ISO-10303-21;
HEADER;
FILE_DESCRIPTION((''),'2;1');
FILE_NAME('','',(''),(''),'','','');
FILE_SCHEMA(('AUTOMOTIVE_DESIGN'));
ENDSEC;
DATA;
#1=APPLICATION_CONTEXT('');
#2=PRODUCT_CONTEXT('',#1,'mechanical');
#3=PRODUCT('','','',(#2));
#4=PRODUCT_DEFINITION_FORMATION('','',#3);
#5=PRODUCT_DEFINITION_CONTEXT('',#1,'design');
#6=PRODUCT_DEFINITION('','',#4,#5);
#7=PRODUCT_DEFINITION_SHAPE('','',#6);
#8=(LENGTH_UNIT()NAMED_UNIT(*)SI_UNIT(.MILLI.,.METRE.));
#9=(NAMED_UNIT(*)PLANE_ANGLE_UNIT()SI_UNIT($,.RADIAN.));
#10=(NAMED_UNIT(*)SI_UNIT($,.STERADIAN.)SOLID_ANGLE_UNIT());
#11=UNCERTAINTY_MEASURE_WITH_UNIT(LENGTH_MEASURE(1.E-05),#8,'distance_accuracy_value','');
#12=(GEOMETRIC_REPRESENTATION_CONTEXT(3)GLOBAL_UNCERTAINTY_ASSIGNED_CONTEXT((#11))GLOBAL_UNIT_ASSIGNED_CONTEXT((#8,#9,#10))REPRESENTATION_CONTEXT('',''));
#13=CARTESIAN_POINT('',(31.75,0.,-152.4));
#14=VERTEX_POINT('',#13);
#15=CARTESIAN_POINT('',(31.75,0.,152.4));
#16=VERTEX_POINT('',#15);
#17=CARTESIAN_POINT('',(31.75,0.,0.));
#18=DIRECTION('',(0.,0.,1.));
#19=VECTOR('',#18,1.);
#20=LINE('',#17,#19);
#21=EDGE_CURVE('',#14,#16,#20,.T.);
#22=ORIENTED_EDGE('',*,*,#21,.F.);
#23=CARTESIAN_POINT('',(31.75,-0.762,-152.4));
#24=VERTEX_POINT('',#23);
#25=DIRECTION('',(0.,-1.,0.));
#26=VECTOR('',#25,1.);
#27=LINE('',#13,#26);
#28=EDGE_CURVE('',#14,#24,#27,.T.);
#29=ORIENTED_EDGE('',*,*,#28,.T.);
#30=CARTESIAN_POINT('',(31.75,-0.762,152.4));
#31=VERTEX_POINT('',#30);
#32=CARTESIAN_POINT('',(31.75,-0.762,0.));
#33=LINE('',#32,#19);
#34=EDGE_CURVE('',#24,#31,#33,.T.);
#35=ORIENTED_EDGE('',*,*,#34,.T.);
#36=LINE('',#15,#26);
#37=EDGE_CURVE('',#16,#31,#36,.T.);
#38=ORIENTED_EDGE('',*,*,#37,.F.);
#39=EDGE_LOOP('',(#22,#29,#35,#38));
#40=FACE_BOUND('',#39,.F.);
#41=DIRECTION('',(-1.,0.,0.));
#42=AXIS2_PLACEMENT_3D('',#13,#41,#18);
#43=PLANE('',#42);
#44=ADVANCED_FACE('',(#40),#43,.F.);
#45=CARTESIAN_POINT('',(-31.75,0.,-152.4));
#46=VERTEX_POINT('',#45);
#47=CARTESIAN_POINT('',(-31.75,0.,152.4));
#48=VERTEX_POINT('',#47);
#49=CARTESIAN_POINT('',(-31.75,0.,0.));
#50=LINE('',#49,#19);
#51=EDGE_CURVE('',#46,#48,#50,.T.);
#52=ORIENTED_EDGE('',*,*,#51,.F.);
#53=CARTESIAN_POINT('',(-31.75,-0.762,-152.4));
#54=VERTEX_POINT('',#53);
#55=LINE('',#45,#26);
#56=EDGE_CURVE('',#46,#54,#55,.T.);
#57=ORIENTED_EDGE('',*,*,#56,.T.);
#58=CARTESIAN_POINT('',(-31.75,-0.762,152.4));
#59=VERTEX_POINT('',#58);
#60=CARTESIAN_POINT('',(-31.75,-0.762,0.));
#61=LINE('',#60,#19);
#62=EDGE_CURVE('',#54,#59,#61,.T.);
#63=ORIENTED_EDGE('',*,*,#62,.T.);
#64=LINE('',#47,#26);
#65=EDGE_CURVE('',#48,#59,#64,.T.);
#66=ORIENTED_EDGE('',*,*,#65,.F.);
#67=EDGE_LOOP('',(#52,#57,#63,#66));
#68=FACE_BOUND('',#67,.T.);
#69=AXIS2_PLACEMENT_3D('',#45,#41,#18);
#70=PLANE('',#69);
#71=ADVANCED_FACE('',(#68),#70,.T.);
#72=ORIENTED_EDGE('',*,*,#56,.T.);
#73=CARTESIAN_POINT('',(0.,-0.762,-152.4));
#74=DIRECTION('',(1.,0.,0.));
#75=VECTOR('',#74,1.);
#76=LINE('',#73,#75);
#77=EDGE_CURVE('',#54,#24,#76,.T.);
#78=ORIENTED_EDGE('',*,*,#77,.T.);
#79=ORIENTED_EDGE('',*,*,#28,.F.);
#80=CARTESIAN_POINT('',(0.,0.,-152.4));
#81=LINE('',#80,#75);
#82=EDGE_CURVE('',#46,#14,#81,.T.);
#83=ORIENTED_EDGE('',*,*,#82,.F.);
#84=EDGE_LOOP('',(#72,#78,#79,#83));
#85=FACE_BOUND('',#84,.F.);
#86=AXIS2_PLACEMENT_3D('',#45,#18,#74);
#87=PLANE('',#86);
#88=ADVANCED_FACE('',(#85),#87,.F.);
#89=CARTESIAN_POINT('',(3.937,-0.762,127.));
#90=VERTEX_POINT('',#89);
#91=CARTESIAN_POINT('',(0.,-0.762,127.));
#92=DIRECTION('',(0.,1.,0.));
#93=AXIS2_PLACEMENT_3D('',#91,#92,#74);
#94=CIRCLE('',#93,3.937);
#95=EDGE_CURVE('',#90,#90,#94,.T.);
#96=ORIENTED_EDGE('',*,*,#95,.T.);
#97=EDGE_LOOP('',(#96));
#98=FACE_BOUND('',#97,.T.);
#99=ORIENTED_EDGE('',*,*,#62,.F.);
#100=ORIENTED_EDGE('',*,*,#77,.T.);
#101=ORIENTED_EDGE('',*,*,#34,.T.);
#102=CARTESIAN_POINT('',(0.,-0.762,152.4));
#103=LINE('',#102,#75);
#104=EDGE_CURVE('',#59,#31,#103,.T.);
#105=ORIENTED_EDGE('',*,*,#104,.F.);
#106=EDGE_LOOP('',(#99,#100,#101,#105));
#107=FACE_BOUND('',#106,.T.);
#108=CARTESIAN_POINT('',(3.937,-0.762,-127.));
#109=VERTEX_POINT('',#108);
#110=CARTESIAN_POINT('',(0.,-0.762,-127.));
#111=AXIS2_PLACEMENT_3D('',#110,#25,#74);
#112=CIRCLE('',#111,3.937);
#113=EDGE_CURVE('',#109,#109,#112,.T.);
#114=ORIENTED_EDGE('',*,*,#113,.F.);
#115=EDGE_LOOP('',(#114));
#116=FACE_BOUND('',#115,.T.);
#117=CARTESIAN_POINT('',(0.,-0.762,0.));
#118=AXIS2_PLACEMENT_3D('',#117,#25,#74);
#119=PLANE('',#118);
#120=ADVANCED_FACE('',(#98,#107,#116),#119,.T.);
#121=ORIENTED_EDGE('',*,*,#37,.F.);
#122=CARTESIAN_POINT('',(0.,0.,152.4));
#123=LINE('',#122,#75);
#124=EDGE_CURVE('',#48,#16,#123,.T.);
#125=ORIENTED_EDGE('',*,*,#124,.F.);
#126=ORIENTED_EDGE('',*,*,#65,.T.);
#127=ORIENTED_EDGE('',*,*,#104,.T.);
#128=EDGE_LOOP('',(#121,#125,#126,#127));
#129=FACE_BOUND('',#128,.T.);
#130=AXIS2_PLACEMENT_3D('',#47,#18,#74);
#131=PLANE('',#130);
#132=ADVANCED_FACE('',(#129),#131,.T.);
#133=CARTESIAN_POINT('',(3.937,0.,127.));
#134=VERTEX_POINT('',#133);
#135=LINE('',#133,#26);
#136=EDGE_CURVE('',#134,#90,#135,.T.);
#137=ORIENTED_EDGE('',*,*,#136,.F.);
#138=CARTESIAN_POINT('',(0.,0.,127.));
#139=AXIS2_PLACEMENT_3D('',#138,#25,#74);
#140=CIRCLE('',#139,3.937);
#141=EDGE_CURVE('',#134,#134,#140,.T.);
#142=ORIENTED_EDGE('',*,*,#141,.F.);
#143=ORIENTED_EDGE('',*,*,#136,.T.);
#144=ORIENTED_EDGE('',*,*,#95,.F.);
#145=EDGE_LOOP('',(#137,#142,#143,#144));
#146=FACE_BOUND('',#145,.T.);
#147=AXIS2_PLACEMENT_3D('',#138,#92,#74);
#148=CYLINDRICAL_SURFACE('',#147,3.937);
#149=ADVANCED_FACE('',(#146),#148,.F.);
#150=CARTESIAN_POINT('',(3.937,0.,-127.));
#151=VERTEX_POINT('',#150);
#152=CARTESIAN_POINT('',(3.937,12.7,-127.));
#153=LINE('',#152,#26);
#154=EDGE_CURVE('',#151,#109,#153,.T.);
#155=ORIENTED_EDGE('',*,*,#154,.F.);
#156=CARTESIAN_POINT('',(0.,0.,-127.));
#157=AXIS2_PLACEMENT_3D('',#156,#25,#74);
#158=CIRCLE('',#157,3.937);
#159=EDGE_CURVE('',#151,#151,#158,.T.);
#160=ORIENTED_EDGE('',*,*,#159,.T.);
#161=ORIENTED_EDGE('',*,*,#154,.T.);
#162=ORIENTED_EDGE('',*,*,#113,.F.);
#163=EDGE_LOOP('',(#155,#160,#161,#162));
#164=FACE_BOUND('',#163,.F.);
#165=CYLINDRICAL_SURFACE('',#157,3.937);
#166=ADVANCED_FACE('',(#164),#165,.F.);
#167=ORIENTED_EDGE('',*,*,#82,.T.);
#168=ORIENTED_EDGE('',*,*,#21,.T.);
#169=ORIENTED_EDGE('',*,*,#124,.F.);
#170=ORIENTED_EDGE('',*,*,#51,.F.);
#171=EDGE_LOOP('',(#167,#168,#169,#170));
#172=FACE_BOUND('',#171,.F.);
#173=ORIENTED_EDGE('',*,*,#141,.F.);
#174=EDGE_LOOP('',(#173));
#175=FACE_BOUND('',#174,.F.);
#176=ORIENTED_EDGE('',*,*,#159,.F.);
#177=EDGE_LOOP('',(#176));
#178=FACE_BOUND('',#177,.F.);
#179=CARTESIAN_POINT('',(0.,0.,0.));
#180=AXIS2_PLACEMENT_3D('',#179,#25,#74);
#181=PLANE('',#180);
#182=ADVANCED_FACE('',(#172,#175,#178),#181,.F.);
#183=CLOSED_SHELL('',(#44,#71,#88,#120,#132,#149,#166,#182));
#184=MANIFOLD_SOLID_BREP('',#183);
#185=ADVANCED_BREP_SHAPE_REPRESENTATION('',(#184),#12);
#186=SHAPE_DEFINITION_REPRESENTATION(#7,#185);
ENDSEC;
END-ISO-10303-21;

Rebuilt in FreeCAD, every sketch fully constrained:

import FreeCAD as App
import Part
import Sketcher
Q = App.Units.Quantity

doc = App.newDocument("Part")
params = doc.addObject("Spreadsheet::Sheet", "Params")
for row, (alias, value) in enumerate([
    ("sketch1_height", "12 in"),
    ("sketch1_width", "2.5 in"),
    ("pad1_length", "0.03 in"),
    ("sketch2_diameter", "0.31 in"),
    ("pocket1_length", "1 in"),
], start=1):
    params.set(f"A{row}", alias)
    params.set(f"B{row}", "=" + value)
    params.setAlias(f"B{row}", alias)

body = doc.addObject("PartDesign::Body", "Body")

# Sketch on XZ plane
sketch1 = doc.addObject("Sketcher::SketchObject", "Sketch")
body.addObject(sketch1)
sketch1.AttachmentSupport = (doc.XZ_Plane, [""])
sketch1.MapMode = "FlatFace"
sketch1.addGeometry([
    Part.LineSegment(App.Vector(-32, 152, 0), App.Vector(-32, -152, 0)),
    Part.LineSegment(App.Vector(-32, -152, 0), App.Vector(32, -152, 0)),
    Part.LineSegment(App.Vector(32, -152, 0), App.Vector(32, 152, 0)),
    Part.LineSegment(App.Vector(32, 152, 0), App.Vector(-32, 152, 0)),
], False)
sketch1.addConstraint([
    Sketcher.Constraint("Coincident", 0, 2, 1, 1),
    Sketcher.Constraint("Coincident", 1, 2, 2, 1),
    Sketcher.Constraint("Coincident", 2, 2, 3, 1),
    Sketcher.Constraint("Coincident", 3, 2, 0, 1),
    Sketcher.Constraint("Vertical", 0),
    Sketcher.Constraint("Horizontal", 1),
    Sketcher.Constraint("Vertical", 2),
    Sketcher.Constraint("Horizontal", 3),
    Sketcher.Constraint("Symmetric", 0, 2, 2, 2, -1, 1),
    Sketcher.Constraint("DistanceY", 0, 2, 0, 1, Q("12 in")),
    Sketcher.Constraint("DistanceX", 1, 1, 1, 2, Q("2.5 in")),
])
sketch1.setExpression("Constraints[9]", "Params.sketch1_height")
sketch1.setExpression("Constraints[10]", "Params.sketch1_width")
pad1 = doc.addObject("PartDesign::Pad", "Pad")
body.addObject(pad1)
pad1.Profile = sketch1
pad1.setExpression("Length", "Params.pad1_length")

# Sketch on XZ plane
sketch2 = doc.addObject("Sketcher::SketchObject", "Sketch001")
body.addObject(sketch2)
sketch2.AttachmentSupport = (doc.XZ_Plane, [""])
sketch2.MapMode = "FlatFace"
sketch2.addGeometry([
    Part.Circle(App.Vector(0, 127, 0), App.Vector(0, 0, 1), 3.9),
    Part.Circle(App.Vector(0, -127, 0), App.Vector(0, 0, 1), 3.9),
], False)
sketch2.addConstraint([
    Sketcher.Constraint("Equal", 0, 1),
    Sketcher.Constraint("Symmetric", 0, 3, 1, 3, -1, 1),
    Sketcher.Constraint("PointOnObject", 0, 3, -2),
    Sketcher.Constraint("Diameter", 0, Q("0.31 in")),
    Sketcher.Constraint("DistanceY", -1, 1, 0, 3, Q("5 in")),
])
sketch2.setExpression("Constraints[3]", "Params.sketch2_diameter")
pocket1 = doc.addObject("PartDesign::Pocket", "Pocket")
body.addObject(pocket1)
pocket1.Profile = sketch2
pocket1.setExpression("Length", "Params.pocket1_length")
pocket1.Midplane = True

doc.recompute()
